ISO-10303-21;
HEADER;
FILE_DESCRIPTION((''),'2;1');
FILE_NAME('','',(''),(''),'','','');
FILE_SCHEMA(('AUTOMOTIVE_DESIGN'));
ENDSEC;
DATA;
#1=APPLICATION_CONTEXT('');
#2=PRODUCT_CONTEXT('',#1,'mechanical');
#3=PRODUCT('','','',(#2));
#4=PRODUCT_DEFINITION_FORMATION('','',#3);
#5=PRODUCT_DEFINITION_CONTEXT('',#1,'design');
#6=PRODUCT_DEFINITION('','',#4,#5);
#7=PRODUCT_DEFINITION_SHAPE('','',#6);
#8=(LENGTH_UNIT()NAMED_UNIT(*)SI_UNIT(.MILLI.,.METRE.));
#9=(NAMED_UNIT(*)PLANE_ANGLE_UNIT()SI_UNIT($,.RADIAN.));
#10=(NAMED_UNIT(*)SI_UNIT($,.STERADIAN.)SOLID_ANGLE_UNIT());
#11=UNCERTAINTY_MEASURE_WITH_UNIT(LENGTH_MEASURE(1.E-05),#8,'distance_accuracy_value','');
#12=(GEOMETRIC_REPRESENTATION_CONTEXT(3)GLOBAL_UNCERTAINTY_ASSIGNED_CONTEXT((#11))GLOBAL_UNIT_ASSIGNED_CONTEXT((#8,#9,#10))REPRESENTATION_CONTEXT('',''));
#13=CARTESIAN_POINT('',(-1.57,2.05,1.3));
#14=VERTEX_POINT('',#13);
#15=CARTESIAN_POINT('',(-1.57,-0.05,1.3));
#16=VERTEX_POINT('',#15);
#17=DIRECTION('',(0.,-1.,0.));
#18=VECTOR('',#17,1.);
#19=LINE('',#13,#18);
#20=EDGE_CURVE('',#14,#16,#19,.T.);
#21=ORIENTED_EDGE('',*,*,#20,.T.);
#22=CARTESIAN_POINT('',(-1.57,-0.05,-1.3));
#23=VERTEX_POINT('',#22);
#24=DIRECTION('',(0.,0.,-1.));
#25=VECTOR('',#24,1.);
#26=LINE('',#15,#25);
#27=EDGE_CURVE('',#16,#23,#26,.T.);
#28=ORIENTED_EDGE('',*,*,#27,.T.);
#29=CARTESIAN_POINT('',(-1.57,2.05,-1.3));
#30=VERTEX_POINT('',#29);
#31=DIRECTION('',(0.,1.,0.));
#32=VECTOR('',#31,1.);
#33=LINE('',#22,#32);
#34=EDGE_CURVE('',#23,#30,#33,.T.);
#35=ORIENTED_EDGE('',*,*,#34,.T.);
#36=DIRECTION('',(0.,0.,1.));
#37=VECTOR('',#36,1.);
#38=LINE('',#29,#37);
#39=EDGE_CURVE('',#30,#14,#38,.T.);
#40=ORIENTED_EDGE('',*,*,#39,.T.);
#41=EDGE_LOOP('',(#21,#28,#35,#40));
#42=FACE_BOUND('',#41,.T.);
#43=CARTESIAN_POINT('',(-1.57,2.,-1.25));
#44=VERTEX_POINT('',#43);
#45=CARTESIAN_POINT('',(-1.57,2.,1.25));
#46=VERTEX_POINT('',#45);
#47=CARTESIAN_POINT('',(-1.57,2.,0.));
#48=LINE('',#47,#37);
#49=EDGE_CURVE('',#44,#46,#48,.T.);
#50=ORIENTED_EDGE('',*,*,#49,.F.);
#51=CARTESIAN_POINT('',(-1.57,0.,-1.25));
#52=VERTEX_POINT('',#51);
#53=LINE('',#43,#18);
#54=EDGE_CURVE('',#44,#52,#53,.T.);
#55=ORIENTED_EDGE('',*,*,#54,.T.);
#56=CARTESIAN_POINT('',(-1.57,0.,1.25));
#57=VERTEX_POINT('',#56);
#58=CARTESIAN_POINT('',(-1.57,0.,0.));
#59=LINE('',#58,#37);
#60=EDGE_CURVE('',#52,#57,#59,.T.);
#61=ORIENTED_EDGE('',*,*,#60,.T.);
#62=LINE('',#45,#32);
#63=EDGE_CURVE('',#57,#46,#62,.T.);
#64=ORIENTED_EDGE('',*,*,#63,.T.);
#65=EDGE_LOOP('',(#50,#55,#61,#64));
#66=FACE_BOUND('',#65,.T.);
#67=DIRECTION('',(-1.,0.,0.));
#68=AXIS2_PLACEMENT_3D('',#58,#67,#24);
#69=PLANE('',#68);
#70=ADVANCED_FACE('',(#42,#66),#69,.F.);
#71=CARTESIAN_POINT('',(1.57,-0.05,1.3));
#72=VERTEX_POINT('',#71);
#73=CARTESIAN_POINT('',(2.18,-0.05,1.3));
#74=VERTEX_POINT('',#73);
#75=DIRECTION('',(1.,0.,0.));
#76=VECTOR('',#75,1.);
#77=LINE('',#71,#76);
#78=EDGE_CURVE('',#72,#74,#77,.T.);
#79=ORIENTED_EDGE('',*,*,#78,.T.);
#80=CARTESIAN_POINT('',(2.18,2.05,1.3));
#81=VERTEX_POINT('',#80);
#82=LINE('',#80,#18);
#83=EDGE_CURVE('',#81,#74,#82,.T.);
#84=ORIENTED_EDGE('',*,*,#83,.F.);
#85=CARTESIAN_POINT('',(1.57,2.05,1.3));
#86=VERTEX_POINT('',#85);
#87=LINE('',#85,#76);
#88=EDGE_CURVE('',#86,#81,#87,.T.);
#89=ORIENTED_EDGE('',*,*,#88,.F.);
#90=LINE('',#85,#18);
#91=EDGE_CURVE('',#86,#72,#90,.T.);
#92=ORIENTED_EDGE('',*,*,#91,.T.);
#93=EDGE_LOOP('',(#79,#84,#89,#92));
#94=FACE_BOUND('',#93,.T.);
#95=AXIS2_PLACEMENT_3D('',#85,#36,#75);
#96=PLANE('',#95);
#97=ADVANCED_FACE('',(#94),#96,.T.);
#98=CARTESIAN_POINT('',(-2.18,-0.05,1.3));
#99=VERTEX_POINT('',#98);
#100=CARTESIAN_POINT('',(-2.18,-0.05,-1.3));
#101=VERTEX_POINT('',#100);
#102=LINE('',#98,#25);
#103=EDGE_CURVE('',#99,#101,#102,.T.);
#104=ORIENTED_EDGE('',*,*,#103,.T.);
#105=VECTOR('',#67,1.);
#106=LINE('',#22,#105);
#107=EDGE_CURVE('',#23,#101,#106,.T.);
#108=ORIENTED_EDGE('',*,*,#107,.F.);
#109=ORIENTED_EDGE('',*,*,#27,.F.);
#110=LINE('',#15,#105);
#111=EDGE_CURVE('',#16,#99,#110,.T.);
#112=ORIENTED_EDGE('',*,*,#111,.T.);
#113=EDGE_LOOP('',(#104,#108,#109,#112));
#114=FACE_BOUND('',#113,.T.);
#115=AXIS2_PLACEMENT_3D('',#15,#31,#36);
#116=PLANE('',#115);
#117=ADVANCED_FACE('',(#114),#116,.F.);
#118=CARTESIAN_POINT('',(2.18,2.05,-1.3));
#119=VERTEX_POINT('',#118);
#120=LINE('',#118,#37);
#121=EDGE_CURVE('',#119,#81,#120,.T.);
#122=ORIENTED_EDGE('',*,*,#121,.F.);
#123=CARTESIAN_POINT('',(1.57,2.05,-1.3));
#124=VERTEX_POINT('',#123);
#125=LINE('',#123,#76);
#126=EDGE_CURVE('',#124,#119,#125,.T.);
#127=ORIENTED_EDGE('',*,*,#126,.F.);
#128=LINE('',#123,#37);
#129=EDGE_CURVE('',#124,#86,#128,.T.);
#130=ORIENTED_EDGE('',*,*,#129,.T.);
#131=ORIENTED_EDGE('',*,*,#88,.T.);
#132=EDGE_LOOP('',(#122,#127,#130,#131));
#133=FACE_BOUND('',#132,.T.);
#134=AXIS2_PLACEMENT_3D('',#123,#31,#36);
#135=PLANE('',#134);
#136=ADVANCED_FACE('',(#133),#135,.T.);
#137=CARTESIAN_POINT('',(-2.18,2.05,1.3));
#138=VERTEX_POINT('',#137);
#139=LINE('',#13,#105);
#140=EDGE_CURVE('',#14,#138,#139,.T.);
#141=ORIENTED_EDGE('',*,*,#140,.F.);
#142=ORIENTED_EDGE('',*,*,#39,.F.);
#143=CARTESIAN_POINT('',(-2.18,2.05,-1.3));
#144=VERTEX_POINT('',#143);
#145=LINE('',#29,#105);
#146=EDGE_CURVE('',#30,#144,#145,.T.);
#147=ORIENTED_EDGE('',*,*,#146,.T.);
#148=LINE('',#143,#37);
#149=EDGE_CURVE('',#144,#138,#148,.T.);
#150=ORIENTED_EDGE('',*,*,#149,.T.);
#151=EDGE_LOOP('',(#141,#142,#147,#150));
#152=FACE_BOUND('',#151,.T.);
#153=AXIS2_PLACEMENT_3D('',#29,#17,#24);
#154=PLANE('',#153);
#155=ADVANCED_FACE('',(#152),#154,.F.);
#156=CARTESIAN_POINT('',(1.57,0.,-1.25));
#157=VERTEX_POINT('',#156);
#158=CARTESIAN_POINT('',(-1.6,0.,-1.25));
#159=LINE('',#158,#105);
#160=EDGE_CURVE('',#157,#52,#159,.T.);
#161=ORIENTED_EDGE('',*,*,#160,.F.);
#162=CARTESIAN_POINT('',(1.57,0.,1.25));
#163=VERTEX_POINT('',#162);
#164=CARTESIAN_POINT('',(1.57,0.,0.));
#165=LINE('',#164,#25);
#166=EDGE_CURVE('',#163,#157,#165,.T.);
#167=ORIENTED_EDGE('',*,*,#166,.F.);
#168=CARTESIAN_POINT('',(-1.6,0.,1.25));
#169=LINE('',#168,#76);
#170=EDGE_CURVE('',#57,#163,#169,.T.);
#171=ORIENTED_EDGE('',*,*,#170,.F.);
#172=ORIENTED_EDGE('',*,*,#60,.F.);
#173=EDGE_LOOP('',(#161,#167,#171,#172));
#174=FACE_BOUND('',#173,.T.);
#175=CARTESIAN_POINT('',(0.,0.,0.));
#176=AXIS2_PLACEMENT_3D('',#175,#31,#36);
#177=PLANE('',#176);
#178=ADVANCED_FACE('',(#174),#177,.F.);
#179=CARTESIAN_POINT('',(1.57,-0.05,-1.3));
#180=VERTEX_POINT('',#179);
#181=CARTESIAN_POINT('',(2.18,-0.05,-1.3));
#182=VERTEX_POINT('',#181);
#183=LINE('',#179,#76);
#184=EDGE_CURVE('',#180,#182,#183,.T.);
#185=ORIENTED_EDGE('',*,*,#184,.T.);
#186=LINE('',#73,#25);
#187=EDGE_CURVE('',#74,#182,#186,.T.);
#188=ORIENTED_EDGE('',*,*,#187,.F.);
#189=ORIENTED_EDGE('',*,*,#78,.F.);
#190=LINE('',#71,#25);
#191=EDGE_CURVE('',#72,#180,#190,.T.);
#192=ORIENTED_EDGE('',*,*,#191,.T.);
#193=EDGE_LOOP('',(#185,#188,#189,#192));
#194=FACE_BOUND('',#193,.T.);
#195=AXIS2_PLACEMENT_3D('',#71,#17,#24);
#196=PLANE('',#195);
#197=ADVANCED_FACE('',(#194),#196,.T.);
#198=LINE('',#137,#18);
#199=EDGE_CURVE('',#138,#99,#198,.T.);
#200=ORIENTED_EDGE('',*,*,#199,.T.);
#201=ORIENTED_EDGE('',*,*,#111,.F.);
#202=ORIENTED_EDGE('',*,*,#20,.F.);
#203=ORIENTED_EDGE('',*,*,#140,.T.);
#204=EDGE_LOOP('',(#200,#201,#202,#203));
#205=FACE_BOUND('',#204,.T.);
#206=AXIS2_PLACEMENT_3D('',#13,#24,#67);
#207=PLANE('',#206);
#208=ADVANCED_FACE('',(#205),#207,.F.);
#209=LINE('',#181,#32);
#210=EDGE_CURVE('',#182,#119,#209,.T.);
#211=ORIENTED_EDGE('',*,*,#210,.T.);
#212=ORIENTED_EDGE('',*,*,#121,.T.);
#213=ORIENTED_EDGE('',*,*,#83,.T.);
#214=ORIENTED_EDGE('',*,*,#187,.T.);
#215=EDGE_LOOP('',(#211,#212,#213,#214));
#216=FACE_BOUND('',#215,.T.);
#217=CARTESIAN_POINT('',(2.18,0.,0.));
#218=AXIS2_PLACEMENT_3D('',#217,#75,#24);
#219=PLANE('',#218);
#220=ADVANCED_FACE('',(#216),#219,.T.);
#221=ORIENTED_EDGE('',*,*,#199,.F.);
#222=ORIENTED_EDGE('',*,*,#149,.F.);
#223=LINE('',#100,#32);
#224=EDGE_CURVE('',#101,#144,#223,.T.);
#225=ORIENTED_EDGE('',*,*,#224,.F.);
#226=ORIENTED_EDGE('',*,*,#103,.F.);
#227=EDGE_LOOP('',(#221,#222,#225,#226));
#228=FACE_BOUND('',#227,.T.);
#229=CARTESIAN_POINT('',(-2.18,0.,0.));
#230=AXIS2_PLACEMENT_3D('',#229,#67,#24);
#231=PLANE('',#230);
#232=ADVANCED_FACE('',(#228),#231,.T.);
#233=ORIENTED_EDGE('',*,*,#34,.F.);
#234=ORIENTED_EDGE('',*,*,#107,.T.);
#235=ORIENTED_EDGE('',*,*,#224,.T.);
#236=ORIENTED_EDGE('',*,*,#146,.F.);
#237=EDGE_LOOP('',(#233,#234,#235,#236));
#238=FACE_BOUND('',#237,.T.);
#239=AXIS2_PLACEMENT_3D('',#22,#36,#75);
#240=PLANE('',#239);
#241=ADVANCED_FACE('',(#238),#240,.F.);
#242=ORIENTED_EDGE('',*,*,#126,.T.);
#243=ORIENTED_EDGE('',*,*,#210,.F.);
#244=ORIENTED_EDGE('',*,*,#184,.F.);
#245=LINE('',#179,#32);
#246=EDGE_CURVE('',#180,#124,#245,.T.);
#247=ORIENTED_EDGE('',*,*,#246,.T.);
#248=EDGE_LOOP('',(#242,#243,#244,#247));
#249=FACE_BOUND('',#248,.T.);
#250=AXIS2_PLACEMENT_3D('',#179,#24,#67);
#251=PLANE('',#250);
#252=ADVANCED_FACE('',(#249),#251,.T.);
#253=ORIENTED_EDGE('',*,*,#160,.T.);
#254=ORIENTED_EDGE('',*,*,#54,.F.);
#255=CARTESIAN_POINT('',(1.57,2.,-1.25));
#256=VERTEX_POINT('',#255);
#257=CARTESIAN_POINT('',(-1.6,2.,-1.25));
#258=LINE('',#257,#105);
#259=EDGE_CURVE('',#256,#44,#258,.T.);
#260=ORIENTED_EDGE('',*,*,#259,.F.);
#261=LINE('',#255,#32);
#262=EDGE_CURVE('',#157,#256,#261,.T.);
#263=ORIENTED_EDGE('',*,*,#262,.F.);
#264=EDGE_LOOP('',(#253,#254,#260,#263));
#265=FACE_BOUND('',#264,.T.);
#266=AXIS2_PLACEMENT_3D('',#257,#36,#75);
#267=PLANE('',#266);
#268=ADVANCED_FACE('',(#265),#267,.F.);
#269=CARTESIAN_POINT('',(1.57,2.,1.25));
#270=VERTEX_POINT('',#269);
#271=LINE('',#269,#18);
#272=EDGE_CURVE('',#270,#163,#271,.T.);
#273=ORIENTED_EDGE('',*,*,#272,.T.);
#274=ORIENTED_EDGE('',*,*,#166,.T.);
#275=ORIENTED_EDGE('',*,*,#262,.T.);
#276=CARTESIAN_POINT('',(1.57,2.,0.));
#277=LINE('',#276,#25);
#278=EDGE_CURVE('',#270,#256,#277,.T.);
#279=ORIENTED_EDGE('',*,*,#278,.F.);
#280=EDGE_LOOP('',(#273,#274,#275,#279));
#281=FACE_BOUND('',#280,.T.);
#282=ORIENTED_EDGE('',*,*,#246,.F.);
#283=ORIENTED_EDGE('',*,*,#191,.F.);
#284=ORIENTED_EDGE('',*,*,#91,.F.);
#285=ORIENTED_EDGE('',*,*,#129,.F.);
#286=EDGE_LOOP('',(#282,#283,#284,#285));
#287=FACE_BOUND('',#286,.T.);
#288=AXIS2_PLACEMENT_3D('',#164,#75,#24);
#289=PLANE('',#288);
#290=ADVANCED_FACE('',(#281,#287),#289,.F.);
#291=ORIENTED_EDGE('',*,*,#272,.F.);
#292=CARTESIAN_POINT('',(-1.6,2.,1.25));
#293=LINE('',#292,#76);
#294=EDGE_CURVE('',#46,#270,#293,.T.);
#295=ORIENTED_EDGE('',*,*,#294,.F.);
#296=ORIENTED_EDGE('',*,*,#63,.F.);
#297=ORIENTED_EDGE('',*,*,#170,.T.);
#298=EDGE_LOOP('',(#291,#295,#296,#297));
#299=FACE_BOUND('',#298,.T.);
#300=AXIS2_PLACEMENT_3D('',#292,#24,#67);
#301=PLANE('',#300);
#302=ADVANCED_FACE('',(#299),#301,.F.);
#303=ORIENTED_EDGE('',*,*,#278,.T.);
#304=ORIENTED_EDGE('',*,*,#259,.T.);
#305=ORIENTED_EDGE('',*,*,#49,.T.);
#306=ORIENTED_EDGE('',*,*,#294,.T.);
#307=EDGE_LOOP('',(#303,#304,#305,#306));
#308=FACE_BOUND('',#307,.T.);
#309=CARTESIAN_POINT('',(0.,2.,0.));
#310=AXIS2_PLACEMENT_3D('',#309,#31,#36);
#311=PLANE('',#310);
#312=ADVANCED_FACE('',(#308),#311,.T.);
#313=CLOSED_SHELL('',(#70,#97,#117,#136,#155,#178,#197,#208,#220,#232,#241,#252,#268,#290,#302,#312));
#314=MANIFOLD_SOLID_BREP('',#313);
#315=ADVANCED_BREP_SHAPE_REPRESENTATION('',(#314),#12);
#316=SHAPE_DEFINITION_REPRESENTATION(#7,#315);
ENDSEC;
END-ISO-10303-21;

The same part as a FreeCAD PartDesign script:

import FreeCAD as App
import Part
import Sketcher
from FreeCAD import Vector

doc = App.newDocument("Part")
body = doc.addObject("PartDesign::Body", "Body")

# Sketch on XZ plane
sketch1 = body.newObject("Sketcher::SketchObject", "Sketch")
sketch1.AttachmentSupport = (doc.getObject("XZ_Plane"), [""])
sketch1.MapMode = "FlatFace"
sketch1.addGeometry(Part.LineSegment(Vector(-1.6, -1.2, 0), Vector(-1.6, 1.2, 0)), False)
sketch1.addGeometry(Part.LineSegment(Vector(-1.6, 1.2, 0), Vector(1.6, 1.2, 0)), False)
sketch1.addGeometry(Part.LineSegment(Vector(1.6, 1.2, 0), Vector(1.6, -1.2, 0)), False)
sketch1.addGeometry(Part.LineSegment(Vector(1.6, -1.2, 0), Vector(-1.6, -1.2, 0)), False)
sketch1.addConstraint(Sketcher.Constraint("Coincident", 0, 2, 1, 1))
sketch1.addConstraint(Sketcher.Constraint("Coincident", 1, 2, 2, 1))
sketch1.addConstraint(Sketcher.Constraint("Coincident", 2, 2, 3, 1))
sketch1.addConstraint(Sketcher.Constraint("Coincident", 3, 2, 0, 1))
sketch1.addConstraint(Sketcher.Constraint("Vertical", 0))
sketch1.addConstraint(Sketcher.Constraint("Horizontal", 1))
sketch1.addConstraint(Sketcher.Constraint("Vertical", 2))
sketch1.addConstraint(Sketcher.Constraint("Horizontal", 3))
sketch1.addConstraint(Sketcher.Constraint("Symmetric", 0, 2, 2, 2, -1, 1))
sketch1.addConstraint(Sketcher.Constraint("DistanceX", 1, 1, 1, 2, 3.2))
sketch1.addConstraint(Sketcher.Constraint("DistanceY", 0, 1, 0, 2, 2.5))
pad1 = body.newObject("PartDesign::Pad", "Pad")
pad1.Profile = sketch1
pad1.Length = 2
pad1.Reversed = True

# Sketch on YZ plane
sketch2 = body.newObject("Sketcher::SketchObject", "Sketch001")
sketch2.AttachmentSupport = (doc.getObject("YZ_Plane"), [""])
sketch2.MapMode = "FlatFace"
sketch2.AttachmentOffset = App.Placement(Vector(0, 0, 1.57), App.Rotation())
sketch2.addGeometry(Part.LineSegment(Vector(2, 1.3, 0), Vector(-0.1, 1.3, 0)), False)
sketch2.addGeometry(Part.LineSegment(Vector(-0.1, 1.3, 0), Vector(-0.1, -1.3, 0)), False)
sketch2.addGeometry(Part.LineSegment(Vector(-0.1, -1.3, 0), Vector(2, -1.3, 0)), False)
sketch2.addGeometry(Part.LineSegment(Vector(2, -1.3, 0), Vector(2, 1.3, 0)), False)
sketch2.addConstraint(Sketcher.Constraint("Coincident", 0, 2, 1, 1))
sketch2.addConstraint(Sketcher.Constraint("Coincident", 1, 2, 2, 1))
sketch2.addConstraint(Sketcher.Constraint("Coincident", 2, 2, 3, 1))
sketch2.addConstraint(Sketcher.Constraint("Coincident", 3, 2, 0, 1))
sketch2.addConstraint(Sketcher.Constraint("Horizontal", 0))
sketch2.addConstraint(Sketcher.Constraint("Vertical", 1))
sketch2.addConstraint(Sketcher.Constraint("Horizontal", 2))
sketch2.addConstraint(Sketcher.Constraint("Vertical", 3))
sketch2.addConstraint(Sketcher.Constraint("DistanceX", 0, 2, 0, 1, 2.1))
sketch2.addConstraint(Sketcher.Constraint("DistanceY", 1, 2, 1, 1, 2.6))
sketch2.addConstraint(Sketcher.Constraint("DistanceY", -1, 1, 0, 2, 1.3))
sketch2.addConstraint(Sketcher.Constraint("DistanceX", 0, 2, -1, 1, 0.05))
pad2 = body.newObject("PartDesign::Pad", "Pad001")
pad2.Profile = sketch2
pad2.Length = 0.61
doc.recompute()

mirrored = body.newObject("PartDesign::Mirrored", "Mirrored")
mirrored.Originals = [pad2]
mirrored.MirrorPlane = (doc.getObject("YZ_Plane"), [""])
body.Tip = mirrored

doc.recompute()
